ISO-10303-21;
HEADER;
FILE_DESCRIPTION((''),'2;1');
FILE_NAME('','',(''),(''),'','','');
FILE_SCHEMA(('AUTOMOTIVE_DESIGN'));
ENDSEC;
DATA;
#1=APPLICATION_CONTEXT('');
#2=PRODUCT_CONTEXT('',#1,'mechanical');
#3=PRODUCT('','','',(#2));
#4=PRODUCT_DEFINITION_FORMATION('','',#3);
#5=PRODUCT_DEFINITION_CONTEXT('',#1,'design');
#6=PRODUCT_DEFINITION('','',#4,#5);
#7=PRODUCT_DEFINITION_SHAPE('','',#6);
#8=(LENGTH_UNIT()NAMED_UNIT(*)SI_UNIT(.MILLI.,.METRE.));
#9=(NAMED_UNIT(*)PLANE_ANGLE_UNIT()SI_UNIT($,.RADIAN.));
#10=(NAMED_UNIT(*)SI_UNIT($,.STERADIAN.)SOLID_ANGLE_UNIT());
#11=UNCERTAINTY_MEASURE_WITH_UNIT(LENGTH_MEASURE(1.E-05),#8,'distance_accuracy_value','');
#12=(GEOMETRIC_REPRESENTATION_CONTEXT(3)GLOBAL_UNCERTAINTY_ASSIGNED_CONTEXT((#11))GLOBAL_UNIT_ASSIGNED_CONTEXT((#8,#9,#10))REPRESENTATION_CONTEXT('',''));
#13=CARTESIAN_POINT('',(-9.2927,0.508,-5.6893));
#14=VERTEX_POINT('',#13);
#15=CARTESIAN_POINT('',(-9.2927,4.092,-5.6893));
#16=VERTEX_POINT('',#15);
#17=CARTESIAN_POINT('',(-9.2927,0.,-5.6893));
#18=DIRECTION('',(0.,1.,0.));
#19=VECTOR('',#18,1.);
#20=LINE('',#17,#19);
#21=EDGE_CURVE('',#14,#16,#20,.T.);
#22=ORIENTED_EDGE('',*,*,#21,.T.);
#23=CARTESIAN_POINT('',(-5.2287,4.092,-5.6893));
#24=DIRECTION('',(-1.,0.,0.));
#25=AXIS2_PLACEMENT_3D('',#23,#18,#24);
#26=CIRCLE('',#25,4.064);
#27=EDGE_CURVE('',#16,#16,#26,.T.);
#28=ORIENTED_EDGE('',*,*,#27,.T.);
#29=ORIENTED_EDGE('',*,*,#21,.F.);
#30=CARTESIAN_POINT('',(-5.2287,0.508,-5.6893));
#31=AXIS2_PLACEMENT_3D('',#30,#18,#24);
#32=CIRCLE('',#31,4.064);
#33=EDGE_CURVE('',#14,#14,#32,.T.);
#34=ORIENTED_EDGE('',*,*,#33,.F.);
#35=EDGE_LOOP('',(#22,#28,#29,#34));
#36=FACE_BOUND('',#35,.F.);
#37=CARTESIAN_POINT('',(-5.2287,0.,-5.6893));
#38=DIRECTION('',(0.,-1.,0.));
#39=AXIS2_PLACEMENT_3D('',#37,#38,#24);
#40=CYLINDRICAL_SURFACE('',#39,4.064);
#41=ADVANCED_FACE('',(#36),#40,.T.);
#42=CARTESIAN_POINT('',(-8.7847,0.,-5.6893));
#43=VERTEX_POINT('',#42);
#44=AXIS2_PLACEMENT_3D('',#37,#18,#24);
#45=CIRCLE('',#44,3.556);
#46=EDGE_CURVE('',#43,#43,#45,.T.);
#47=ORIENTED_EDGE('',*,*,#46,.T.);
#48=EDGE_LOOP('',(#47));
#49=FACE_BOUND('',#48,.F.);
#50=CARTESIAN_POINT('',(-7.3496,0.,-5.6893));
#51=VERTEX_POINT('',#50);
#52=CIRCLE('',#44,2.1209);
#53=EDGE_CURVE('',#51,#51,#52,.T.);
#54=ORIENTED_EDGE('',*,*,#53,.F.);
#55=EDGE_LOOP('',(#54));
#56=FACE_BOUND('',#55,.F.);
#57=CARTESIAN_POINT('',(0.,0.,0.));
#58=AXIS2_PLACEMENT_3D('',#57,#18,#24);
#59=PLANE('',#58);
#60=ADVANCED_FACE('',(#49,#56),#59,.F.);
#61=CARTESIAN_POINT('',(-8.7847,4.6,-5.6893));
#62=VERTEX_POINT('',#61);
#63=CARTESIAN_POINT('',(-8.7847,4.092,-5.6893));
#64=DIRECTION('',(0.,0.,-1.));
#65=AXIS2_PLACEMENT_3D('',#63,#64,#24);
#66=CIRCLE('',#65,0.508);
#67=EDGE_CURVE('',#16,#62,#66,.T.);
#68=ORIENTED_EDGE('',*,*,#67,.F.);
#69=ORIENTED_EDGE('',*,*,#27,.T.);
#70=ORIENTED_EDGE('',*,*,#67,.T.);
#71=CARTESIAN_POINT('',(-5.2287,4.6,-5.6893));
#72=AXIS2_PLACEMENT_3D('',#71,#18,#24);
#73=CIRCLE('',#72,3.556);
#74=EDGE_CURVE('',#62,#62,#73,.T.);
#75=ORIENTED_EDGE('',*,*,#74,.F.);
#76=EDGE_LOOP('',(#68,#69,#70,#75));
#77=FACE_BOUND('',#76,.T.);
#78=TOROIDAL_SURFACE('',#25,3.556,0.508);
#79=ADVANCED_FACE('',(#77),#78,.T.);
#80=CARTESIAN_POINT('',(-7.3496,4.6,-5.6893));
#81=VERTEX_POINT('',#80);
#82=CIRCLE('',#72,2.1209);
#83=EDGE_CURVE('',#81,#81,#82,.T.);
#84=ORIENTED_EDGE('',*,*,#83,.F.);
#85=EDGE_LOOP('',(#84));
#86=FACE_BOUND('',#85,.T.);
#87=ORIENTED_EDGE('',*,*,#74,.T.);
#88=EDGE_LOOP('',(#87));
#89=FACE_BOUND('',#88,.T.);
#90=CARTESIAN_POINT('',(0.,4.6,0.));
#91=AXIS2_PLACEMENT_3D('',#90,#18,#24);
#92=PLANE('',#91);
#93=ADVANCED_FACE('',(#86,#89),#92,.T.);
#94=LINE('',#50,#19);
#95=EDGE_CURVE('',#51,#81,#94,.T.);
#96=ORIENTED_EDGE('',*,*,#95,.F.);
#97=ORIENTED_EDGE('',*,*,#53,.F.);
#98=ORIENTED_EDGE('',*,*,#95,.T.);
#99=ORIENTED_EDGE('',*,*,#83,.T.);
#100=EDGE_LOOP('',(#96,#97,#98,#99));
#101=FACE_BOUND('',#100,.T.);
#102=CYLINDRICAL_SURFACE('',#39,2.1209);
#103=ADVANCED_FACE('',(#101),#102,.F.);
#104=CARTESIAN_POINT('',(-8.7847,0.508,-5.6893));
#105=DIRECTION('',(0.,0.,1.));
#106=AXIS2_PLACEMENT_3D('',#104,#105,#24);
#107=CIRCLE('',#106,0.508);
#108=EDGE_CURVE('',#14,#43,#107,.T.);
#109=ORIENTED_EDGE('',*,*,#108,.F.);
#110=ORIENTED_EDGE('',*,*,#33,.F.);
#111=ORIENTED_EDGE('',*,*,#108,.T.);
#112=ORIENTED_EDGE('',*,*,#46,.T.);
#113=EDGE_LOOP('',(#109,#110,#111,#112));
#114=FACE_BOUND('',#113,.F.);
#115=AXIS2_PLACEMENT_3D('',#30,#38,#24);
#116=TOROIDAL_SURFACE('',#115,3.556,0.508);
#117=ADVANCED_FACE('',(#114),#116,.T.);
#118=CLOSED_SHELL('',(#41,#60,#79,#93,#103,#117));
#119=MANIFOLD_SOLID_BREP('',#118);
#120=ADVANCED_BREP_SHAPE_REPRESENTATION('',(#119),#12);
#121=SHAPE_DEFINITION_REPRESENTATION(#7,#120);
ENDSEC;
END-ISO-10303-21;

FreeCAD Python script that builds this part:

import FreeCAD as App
import Part
import Sketcher
Q = App.Units.Quantity


def edges_at(feature, points):
    """Names of the edges that pass closest to the given points."""
    edges = feature.Shape.Edges
    near = lambda p: min(range(len(edges)), key=lambda i: edges[i].distToShape(Part.Vertex(*p))[0])
    return sorted({f"Edge{near(p) + 1}" for p in points})

doc = App.newDocument("Part")
body = doc.addObject("PartDesign::Body", "Body")

# Sketch on XZ plane
sketch1 = body.newObject("Sketcher::SketchObject", "Sketch")
sketch1.AttachmentSupport = (doc.getObject("XZ_Plane"), [""])
sketch1.MapMode = "FlatFace"
sketch1.addGeometry(Part.Circle(App.Vector(-5.2287, -5.6893, 0), App.Vector(0, 0, 1), 4.064), False)
sketch1.addGeometry(Part.Circle(App.Vector(-5.2287, -5.6893, 0), App.Vector(0, 0, 1), 2.1209), False)
sketch1.addConstraint(Sketcher.Constraint("Coincident", 1, 3, 0, 3))
sketch1.addConstraint(Sketcher.Constraint("Diameter", 0, Q("0.32 in")))
sketch1.addConstraint(Sketcher.Constraint("Diameter", 1, Q("0.167 in")))
sketch1.addConstraint(Sketcher.Constraint("DistanceY", 0, 3, -1, 1, Q("0.224 in")))
sketch1.addConstraint(Sketcher.Constraint("DistanceX", 0, 3, -1, 1, 5.2287))
pad1 = body.newObject("PartDesign::Pad", "Pad")
pad1.Profile = sketch1
pad1.Length = Q("0.1811024 in")
pad1.Reversed = True
doc.recompute()

fillet = body.newObject("PartDesign::Fillet", "Fillet")
fillet.Base = (pad1, edges_at(pad1, [(-1.165, 4.6, -5.689), (-1.165, 0, -5.689)]))
fillet.Radius = Q("0.02 in")

doc.recompute()
